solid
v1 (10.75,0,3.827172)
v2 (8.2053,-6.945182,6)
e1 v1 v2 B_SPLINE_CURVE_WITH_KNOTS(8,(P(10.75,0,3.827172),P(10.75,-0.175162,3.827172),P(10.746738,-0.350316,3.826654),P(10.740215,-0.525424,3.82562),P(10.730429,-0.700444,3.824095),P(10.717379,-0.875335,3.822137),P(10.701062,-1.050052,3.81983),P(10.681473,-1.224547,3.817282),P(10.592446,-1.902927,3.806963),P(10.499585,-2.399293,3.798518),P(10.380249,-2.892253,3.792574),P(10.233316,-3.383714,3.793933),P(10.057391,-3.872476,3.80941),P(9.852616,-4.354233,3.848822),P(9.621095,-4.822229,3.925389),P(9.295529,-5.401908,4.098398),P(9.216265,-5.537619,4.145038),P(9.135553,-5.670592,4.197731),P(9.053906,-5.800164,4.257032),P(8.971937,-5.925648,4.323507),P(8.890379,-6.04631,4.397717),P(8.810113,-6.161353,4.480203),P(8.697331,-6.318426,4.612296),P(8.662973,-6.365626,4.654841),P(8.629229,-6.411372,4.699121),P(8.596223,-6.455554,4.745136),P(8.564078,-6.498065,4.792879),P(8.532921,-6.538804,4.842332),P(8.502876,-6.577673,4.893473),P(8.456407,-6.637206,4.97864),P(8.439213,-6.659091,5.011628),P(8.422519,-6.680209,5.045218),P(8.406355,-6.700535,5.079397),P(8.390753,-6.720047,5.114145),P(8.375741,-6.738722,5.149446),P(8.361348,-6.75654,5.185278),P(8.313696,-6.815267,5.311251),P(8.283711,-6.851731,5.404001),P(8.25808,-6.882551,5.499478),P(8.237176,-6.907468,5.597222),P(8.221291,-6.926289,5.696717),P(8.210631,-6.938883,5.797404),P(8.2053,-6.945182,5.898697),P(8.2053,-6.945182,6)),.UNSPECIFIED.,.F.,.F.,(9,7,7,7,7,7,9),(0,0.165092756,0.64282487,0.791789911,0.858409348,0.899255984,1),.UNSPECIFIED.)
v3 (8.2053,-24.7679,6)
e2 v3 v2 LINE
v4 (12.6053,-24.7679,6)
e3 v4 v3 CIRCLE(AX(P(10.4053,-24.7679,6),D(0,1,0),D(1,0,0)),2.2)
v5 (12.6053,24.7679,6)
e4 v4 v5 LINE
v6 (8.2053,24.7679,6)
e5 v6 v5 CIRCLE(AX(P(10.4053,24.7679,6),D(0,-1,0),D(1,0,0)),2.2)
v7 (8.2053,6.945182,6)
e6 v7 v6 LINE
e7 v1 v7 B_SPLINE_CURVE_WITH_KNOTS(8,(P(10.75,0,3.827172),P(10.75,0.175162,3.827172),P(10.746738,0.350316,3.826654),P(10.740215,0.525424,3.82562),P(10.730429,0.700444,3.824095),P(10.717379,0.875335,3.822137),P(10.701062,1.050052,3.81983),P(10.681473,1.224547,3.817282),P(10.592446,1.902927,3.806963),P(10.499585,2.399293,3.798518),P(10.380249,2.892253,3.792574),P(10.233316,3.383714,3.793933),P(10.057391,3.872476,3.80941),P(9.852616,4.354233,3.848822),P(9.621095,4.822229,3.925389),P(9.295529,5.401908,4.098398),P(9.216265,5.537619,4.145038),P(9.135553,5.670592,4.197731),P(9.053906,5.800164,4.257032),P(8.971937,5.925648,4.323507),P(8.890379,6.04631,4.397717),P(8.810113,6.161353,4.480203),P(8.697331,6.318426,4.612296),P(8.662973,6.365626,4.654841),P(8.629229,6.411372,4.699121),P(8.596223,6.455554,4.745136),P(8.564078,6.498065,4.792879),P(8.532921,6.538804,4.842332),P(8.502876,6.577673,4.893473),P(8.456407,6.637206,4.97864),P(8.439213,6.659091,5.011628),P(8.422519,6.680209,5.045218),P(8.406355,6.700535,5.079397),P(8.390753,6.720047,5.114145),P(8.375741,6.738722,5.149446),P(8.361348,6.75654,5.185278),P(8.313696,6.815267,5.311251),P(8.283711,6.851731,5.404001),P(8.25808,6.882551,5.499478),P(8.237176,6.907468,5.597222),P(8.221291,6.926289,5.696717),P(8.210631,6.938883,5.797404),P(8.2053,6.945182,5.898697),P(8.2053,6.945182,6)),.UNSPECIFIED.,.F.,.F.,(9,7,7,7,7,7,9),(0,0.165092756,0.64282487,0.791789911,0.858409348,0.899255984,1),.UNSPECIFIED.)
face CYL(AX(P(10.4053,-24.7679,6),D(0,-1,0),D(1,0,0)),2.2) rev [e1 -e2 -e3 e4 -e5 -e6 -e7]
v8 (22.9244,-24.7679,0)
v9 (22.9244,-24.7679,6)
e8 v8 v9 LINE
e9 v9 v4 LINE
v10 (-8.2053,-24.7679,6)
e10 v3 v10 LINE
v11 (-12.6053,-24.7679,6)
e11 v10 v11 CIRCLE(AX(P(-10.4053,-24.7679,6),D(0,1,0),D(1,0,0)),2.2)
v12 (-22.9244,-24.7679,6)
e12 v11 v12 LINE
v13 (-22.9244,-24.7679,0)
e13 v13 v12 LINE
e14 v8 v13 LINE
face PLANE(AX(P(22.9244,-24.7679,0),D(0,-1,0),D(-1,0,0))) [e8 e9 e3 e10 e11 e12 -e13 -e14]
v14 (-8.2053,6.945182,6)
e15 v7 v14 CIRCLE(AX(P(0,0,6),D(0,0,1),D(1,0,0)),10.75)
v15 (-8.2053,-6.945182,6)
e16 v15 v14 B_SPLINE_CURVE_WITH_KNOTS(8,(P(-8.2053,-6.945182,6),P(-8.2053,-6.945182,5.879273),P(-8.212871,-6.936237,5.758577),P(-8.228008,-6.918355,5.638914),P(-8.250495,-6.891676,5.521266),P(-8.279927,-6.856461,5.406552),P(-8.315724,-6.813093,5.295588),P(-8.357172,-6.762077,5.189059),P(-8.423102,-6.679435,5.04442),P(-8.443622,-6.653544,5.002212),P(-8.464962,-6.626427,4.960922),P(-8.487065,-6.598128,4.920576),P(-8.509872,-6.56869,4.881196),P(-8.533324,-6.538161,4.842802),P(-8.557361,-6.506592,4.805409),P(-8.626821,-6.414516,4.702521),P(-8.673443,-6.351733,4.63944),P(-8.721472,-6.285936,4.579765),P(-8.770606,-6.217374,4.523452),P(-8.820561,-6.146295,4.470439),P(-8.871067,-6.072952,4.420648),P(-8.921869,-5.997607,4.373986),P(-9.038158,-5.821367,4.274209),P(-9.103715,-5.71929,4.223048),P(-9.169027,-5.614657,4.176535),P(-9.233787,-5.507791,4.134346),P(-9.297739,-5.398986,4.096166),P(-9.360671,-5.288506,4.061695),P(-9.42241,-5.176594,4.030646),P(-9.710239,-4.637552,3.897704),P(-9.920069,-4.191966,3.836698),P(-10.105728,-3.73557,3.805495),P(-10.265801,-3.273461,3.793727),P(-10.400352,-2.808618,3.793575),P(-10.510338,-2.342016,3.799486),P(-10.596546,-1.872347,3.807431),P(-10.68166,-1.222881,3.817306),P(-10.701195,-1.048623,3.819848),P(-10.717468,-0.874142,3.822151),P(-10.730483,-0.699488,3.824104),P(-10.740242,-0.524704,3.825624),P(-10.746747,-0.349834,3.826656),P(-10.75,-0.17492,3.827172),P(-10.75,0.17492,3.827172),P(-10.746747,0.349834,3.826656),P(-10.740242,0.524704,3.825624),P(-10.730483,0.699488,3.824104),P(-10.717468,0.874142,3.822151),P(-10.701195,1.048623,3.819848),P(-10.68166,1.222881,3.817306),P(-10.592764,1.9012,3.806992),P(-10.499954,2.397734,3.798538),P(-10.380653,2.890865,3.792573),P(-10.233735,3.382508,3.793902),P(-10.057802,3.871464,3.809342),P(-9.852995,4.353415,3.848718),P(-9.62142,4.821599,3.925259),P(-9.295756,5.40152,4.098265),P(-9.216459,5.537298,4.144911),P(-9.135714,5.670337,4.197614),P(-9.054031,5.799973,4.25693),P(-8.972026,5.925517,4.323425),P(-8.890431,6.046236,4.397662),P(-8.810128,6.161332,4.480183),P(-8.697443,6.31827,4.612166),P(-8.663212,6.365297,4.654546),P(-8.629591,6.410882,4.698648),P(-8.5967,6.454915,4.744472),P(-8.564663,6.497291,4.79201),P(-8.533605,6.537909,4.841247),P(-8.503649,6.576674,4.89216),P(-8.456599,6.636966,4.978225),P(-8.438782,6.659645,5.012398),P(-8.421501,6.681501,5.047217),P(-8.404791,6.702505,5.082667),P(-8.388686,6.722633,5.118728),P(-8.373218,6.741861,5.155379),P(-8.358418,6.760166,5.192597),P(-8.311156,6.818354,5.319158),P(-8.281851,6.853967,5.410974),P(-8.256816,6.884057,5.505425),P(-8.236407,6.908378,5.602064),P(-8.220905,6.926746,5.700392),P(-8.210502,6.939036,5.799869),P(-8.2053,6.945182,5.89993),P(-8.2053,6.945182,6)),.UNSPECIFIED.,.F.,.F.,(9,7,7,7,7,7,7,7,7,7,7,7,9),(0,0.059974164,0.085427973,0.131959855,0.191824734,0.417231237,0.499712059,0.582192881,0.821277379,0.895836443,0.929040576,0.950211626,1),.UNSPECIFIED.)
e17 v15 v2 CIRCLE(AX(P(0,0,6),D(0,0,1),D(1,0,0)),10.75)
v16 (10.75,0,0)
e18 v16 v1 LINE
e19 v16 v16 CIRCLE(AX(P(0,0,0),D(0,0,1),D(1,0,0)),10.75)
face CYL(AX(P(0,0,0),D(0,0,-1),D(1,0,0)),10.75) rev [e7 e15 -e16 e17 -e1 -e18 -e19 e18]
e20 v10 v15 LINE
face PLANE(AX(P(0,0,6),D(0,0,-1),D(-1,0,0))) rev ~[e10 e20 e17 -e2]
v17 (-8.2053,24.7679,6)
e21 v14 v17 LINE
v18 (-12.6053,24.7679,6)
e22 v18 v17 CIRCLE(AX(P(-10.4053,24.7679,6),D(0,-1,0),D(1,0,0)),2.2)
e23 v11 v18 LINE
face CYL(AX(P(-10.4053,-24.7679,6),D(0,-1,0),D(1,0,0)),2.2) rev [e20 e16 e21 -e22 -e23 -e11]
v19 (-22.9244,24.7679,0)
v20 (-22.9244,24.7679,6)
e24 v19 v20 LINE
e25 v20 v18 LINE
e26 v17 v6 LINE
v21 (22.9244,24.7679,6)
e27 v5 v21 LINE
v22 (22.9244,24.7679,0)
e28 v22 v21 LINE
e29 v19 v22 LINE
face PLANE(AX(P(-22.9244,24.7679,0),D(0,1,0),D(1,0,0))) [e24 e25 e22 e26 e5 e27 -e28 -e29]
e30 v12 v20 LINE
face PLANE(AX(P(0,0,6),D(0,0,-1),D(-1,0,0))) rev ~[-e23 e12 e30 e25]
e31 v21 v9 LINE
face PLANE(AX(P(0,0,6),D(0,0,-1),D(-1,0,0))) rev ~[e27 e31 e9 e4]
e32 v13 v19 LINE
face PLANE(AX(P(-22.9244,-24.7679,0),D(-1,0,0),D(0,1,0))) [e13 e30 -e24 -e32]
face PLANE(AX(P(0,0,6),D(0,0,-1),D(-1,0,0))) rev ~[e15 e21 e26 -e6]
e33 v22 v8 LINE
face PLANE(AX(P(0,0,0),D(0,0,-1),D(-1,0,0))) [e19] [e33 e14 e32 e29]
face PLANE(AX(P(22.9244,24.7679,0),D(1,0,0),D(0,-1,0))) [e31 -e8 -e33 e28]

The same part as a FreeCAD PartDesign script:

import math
import FreeCAD as App
import Part
import Sketcher

V = App.Vector

doc = App.newDocument("Part")
body = doc.addObject("PartDesign::Body", "Body")

sketch1 = body.newObject("Sketcher::SketchObject", "Sketch")
sketch1.AttachmentSupport = (doc.getObject("XY_Plane"), [""])
sketch1.MapMode = "FlatFace"
sketch1.addGeometry([
    Part.LineSegment(V(23, 25, 0), V(-23, 25, 0)),
    Part.LineSegment(V(-23, 25, 0), V(-23, -25, 0)),
    Part.LineSegment(V(-23, -25, 0), V(23, -25, 0)),
    Part.LineSegment(V(23, -25, 0), V(23, 25, 0)),
    Part.Circle(V(0, 0, 0), V(0, 0, 1), 11),
], False)
sketch1.addConstraint([
    Sketcher.Constraint("Coincident", 0, 2, 1, 1),
    Sketcher.Constraint("Coincident", 1, 2, 2, 1),
    Sketcher.Constraint("Coincident", 2, 2, 3, 1),
    Sketcher.Constraint("Coincident", 3, 2, 0, 1),
    Sketcher.Constraint("Horizontal", 0),
    Sketcher.Constraint("Vertical", 1),
    Sketcher.Constraint("Horizontal", 2),
    Sketcher.Constraint("Vertical", 3),
    Sketcher.Constraint("Coincident", 4, 3, -1, 1),
    Sketcher.Constraint("Symmetric", 0, 2, 2, 2, -1, 1),
    Sketcher.Constraint("Diameter", 4, 21.5),
    Sketcher.Constraint("DistanceX", 0, 2, 0, 1, 45.8488),
    Sketcher.Constraint("DistanceY", 1, 2, 1, 1, 49.5358),
])
pad1 = body.newObject("PartDesign::Pad", "Pad")
pad1.Profile = sketch1
pad1.Length = 6

sketch2 = body.newObject("Sketcher::SketchObject", "Sketch001")
sketch2.AttachmentSupport = (doc.getObject("XZ_Plane"), [""])
sketch2.MapMode = "FlatFace"
sketch2.AttachmentOffset = App.Placement(V(0, 0, 24.7679), App.Rotation())
sketch2.addGeometry([
    Part.ArcOfCircle(Part.Circle(V(-10.4, 6, 0), V(0, 0, 1), 2.2), math.radians(180), math.radians(360)),
    Part.LineSegment(V(-8.2, 6, 0), V(-12.6, 6, 0)),
    Part.ArcOfCircle(Part.Circle(V(10.4, 6, 0), V(0, 0, 1), 2.2), math.radians(180), math.radians(360)),
    Part.LineSegment(V(12.6, 6, 0), V(8.2, 6, 0)),
], False)
sketch2.addConstraint([
    Sketcher.Constraint("Coincident", 0, 1, 1, 2),
    Sketcher.Constraint("Coincident", 1, 1, 0, 2),
    Sketcher.Constraint("Coincident", 2, 1, 3, 2),
    Sketcher.Constraint("Coincident", 3, 1, 2, 2),
    Sketcher.Constraint("Horizontal", 1),
    Sketcher.Constraint("Horizontal", 3),
    Sketcher.Constraint("Equal", 0, 2),
    Sketcher.Constraint("Symmetric", 0, 3, 2, 3, -2),
    Sketcher.Constraint("Horizontal", 2, 3, 0, 1),
    Sketcher.Constraint("Horizontal", 1, 1, 2, 1),
    Sketcher.Constraint("Radius", 0, 2.2),
    Sketcher.Constraint("DistanceY", -1, 1, 0, 3, 6.0),
    Sketcher.Constraint("DistanceX", 0, 3, -1, 1, 10.4053),
])
pocket1 = body.newObject("PartDesign::Pocket", "Pocket")
pocket1.Profile = sketch2
pocket1.Type = "ThroughAll"

doc.recompute()
